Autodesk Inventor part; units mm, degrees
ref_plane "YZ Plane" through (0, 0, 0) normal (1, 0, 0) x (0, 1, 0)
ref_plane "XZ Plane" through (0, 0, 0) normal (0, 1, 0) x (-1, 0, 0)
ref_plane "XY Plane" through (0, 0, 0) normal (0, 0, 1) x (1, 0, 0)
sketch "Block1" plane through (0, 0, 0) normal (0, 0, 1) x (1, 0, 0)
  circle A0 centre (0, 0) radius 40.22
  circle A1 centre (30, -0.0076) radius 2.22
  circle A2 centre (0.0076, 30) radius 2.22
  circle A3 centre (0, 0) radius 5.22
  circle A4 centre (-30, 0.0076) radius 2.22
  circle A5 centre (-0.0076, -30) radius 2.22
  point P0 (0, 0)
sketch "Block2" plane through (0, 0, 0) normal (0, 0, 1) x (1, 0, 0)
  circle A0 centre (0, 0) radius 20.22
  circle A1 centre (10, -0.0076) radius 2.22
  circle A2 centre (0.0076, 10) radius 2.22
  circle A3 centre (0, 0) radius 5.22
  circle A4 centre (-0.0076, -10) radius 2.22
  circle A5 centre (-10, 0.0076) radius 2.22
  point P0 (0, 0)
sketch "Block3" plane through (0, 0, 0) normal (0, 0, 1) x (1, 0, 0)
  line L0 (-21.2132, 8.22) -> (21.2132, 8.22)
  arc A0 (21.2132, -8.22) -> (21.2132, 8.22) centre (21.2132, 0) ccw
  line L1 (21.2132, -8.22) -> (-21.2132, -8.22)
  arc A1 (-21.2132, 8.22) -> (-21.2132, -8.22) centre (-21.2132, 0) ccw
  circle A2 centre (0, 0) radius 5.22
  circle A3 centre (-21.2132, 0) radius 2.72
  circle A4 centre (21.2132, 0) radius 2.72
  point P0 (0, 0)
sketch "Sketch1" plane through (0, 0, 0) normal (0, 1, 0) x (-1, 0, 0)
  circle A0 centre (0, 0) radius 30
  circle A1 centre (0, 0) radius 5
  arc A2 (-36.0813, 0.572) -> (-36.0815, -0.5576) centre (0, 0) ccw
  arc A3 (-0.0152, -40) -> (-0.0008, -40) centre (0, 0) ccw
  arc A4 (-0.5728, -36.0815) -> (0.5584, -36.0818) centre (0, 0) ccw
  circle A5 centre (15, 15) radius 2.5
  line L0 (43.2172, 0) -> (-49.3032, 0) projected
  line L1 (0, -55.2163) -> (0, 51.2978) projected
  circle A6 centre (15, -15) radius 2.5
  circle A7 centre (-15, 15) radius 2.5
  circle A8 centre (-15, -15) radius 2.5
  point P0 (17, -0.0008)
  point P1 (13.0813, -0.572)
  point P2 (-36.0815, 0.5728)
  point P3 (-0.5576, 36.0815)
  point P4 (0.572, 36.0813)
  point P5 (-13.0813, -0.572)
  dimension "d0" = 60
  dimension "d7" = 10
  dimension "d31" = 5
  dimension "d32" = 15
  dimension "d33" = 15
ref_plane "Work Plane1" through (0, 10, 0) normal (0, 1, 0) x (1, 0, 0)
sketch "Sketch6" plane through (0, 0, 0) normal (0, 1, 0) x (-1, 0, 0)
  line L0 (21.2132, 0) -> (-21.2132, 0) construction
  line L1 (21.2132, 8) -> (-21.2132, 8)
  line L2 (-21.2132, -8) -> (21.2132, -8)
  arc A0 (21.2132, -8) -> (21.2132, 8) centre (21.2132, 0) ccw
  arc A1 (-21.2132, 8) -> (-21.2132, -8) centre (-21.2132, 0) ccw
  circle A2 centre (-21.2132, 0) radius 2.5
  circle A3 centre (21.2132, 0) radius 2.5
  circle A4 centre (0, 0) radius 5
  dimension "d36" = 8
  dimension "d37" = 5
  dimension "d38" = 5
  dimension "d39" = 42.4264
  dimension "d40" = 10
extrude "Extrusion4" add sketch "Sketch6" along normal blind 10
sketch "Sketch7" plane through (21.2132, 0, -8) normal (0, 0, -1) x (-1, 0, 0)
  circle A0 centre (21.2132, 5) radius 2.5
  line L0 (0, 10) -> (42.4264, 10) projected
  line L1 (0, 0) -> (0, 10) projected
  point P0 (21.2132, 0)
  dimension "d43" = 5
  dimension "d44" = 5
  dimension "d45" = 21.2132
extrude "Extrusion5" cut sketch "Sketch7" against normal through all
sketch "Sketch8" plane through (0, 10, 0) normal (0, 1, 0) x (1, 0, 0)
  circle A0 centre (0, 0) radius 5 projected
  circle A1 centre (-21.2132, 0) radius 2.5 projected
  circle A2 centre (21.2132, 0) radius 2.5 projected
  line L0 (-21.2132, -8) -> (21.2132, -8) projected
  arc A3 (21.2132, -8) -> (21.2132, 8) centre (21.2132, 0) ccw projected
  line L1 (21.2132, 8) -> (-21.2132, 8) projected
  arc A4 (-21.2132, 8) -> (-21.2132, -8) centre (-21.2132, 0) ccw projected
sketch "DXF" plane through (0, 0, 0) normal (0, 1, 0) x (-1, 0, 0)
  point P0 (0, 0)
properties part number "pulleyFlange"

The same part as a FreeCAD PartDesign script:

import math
import FreeCAD as App
import Part
import Sketcher
Q = App.Units.Quantity

doc = App.newDocument("Part")
body = doc.addObject("PartDesign::Body", "Body")

# Sketch on XZ plane
sketch1 = doc.addObject("Sketcher::SketchObject", "Sketch")
body.addObject(sketch1)
sketch1.AttachmentSupport = (doc.XZ_Plane, [""])
sketch1.MapMode = "FlatFace"
sketch1.addGeometry(Part.ArcOfCircle(Part.Circle(App.Vector(-21.2, 0, 0), App.Vector(0, 0, 1), 8), math.radians(90), math.radians(270)), False)
sketch1.addGeometry(Part.LineSegment(App.Vector(-21.2, 8, 0), App.Vector(21.2, 8, 0)), False)
sketch1.addGeometry(Part.ArcOfCircle(Part.Circle(App.Vector(21.2, 0, 0), App.Vector(0, 0, 1), 8), math.radians(-90), math.radians(90)), False)
sketch1.addGeometry(Part.LineSegment(App.Vector(21.2, -8, 0), App.Vector(-21.2, -8, 0)), False)
sketch1.addGeometry(Part.Circle(App.Vector(21.2, 0, 0), App.Vector(0, 0, 1), 2.5), False)
sketch1.addGeometry(Part.Circle(App.Vector(0, 0, 0), App.Vector(0, 0, 1), 5), False)
sketch1.addGeometry(Part.Circle(App.Vector(-21.2, 0, 0), App.Vector(0, 0, 1), 2.5), False)
sketch1.addConstraint(Sketcher.Constraint("Tangent", 0, 1, 1, 1))
sketch1.addConstraint(Sketcher.Constraint("Tangent", 1, 2, 2, 2))
sketch1.addConstraint(Sketcher.Constraint("Tangent", 2, 1, 3, 1))
sketch1.addConstraint(Sketcher.Constraint("Tangent", 3, 2, 0, 2))
sketch1.addConstraint(Sketcher.Constraint("Horizontal", 1))
sketch1.addConstraint(Sketcher.Constraint("Horizontal", 3))
sketch1.addConstraint(Sketcher.Constraint("Coincident", 5, 3, -1, 1))
sketch1.addConstraint(Sketcher.Constraint("Coincident", 4, 3, 2, 3))
sketch1.addConstraint(Sketcher.Constraint("Coincident", 6, 3, 0, 3))
sketch1.addConstraint(Sketcher.Constraint("Equal", 4, 6))
sketch1.addConstraint(Sketcher.Constraint("Symmetric", 0, 3, 2, 3, -1, 1))
sketch1.addConstraint(Sketcher.Constraint("Diameter", 4, Q("5 mm")))
sketch1.addConstraint(Sketcher.Constraint("Diameter", 5, Q("10 mm")))
sketch1.addConstraint(Sketcher.Constraint("Radius", 0, Q("8 mm")))
sketch1.addConstraint(Sketcher.Constraint("DistanceX", 1, 1, 1, 2, Q("42.4264 mm")))
pad1 = doc.addObject("PartDesign::Pad", "Pad")
body.addObject(pad1)
pad1.Profile = sketch1
pad1.Length = 10
pad1.Reversed = True

# Sketch on XY plane
sketch2 = doc.addObject("Sketcher::SketchObject", "Sketch001")
body.addObject(sketch2)
sketch2.AttachmentSupport = (doc.XY_Plane, [""])
sketch2.MapMode = "FlatFace"
sketch2.AttachmentOffset = App.Placement(App.Vector(0, 0, -8), App.Rotation())
sketch2.addGeometry(Part.Circle(App.Vector(0, 5, 0), App.Vector(0, 0, 1), 2.5), False)
sketch2.addConstraint(Sketcher.Constraint("PointOnObject", 0, 3, -2))
sketch2.addConstraint(Sketcher.Constraint("Diameter", 0, Q("5 mm")))
sketch2.addConstraint(Sketcher.Constraint("DistanceY", -1, 1, 0, 3, Q("5 mm")))
pocket1 = doc.addObject("PartDesign::Pocket", "Pocket")
body.addObject(pocket1)
pocket1.Profile = sketch2
pocket1.Type = "ThroughAll"
pocket1.Reversed = True

doc.recompute()
